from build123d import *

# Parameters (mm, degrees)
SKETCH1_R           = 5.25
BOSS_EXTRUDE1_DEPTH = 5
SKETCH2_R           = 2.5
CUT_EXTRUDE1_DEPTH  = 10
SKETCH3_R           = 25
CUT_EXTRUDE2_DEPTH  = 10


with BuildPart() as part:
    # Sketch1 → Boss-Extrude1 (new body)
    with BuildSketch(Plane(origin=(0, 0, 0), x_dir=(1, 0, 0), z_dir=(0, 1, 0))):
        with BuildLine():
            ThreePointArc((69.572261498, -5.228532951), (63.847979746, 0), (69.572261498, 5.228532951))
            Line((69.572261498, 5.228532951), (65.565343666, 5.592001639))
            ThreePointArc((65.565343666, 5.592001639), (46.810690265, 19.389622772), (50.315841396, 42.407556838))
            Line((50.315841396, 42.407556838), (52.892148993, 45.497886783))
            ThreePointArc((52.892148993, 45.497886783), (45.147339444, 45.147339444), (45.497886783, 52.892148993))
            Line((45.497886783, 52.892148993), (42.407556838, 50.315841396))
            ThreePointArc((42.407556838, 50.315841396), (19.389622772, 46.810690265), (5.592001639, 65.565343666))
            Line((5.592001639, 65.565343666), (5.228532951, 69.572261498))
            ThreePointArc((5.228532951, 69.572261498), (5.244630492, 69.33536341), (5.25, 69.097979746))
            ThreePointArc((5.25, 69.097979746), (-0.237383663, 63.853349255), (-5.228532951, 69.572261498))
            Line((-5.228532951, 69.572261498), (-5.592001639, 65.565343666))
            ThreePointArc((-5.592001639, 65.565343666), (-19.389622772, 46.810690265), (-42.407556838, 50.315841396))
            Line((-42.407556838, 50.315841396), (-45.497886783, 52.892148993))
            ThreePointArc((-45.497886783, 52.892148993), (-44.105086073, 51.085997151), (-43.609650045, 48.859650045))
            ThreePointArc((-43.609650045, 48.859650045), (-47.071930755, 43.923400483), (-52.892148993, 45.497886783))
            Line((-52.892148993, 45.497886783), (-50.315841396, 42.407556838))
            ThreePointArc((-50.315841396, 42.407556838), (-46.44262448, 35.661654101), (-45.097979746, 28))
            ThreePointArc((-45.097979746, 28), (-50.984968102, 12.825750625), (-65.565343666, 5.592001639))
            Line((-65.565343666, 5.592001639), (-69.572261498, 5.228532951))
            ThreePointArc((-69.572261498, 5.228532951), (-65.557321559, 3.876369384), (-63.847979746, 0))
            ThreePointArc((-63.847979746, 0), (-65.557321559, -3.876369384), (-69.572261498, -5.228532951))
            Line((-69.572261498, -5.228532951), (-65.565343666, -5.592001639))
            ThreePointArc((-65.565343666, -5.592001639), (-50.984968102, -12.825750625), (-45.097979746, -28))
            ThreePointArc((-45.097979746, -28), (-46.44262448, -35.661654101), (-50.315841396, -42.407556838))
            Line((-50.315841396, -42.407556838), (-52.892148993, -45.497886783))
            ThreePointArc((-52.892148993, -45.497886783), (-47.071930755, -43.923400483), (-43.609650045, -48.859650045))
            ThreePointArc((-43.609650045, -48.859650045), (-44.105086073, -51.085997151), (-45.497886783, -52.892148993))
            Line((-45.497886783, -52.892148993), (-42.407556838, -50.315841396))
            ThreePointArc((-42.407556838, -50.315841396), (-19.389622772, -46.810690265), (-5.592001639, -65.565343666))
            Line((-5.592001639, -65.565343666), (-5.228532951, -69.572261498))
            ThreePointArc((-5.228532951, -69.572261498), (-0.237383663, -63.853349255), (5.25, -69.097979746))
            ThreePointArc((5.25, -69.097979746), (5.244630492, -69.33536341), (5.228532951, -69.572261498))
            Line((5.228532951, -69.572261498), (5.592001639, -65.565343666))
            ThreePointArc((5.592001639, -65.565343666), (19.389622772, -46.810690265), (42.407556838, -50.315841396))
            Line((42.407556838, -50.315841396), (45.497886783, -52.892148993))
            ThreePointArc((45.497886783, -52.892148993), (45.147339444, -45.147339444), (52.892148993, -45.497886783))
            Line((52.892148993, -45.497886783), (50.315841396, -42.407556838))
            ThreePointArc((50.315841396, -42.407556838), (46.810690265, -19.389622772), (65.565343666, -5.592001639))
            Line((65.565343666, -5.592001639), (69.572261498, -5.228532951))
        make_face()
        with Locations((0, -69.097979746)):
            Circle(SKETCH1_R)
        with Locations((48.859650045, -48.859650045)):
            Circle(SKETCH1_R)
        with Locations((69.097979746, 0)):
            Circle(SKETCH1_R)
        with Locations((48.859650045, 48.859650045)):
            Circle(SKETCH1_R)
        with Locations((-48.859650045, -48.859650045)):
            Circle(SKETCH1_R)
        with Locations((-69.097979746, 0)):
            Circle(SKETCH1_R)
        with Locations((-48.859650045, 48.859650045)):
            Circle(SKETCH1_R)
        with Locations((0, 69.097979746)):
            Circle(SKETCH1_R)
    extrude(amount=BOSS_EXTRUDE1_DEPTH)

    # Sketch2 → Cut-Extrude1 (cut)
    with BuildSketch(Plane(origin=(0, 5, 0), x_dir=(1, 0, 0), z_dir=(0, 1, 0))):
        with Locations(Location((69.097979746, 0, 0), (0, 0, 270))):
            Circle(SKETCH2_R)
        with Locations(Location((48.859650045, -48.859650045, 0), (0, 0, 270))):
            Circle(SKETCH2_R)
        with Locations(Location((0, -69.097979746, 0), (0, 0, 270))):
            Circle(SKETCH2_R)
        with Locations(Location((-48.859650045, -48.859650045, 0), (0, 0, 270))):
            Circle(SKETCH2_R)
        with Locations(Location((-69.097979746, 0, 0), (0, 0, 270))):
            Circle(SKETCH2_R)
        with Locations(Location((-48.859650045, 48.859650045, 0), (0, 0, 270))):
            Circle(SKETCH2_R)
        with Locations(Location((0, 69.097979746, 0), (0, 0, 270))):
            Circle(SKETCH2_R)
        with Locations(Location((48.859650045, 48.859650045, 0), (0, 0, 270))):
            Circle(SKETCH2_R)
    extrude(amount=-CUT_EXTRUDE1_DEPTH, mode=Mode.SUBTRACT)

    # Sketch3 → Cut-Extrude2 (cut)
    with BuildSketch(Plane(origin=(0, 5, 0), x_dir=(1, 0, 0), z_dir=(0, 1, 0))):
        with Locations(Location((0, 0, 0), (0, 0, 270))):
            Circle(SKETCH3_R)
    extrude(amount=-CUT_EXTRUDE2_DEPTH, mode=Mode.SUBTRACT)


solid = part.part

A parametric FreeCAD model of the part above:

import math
import FreeCAD as App
import Part
import Sketcher

doc = App.newDocument("Part")
body = doc.addObject("PartDesign::Body", "Body")

sketch1 = body.newObject("Sketcher::SketchObject", "Sketch")
sketch1.AttachmentSupport = (doc.getObject("XZ_Plane"), [""])
sketch1.MapMode = "FlatFace"
sketch1.addGeometry(Part.LineSegment(App.Vector(69.572261, -5.228533, 0), App.Vector(65.565344, -5.592002, 0)), False)
sketch1.addGeometry(Part.ArcOfCircle(Part.Circle(App.Vector(67.59798, -28, 0), App.Vector(0, 0, 1), 22.5), math.radians(95.183132), math.radians(219.816868)), False)
sketch1.addGeometry(Part.LineSegment(App.Vector(50.315841, -42.407557, 0), App.Vector(52.892149, -45.497887, 0)), False)
sketch1.addGeometry(Part.ArcOfCircle(Part.Circle(App.Vector(48.85965, -48.85965, 0), App.Vector(0, 0, 1), 5.25), math.radians(-129.816868), math.radians(39.816868)), False)
sketch1.addGeometry(Part.LineSegment(App.Vector(45.497887, -52.892149, 0), App.Vector(42.407557, -50.315841, 0)), False)
sketch1.addGeometry(Part.ArcOfCircle(Part.Circle(App.Vector(28, -67.59798, 0), App.Vector(0, 0, 1), 22.5), math.radians(50.183132), math.radians(174.816868)), False)
sketch1.addGeometry(Part.LineSegment(App.Vector(5.592002, -65.565344, 0), App.Vector(5.228533, -69.572261, 0)), False)
sketch1.addGeometry(Part.ArcOfCircle(Part.Circle(App.Vector(0, -69.09798, 0), App.Vector(0, 0, 1), 5.25), math.radians(-174.816868), math.radians(-5.183132)), False)
sketch1.addGeometry(Part.LineSegment(App.Vector(-5.228533, -69.572261, 0), App.Vector(-5.592002, -65.565344, 0)), False)
sketch1.addGeometry(Part.ArcOfCircle(Part.Circle(App.Vector(-28, -67.59798, 0), App.Vector(0, 0, 1), 22.5), math.radians(5.183132), math.radians(129.816868)), False)
sketch1.addGeometry(Part.LineSegment(App.Vector(-42.407557, -50.315841, 0), App.Vector(-45.497887, -52.892149, 0)), False)
sketch1.addGeometry(Part.ArcOfCircle(Part.Circle(App.Vector(-48.85965, -48.85965, 0), App.Vector(0, 0, 1), 5.25), math.radians(140.183132), math.radians(309.816868)), False)
sketch1.addGeometry(Part.LineSegment(App.Vector(-52.892149, -45.497887, 0), App.Vector(-50.315841, -42.407557, 0)), False)
sketch1.addGeometry(Part.ArcOfCircle(Part.Circle(App.Vector(-67.59798, -28, 0), App.Vector(0, 0, 1), 22.5), math.radians(-39.816868), math.radians(0)), False)
sketch1.addGeometry(Part.ArcOfCircle(Part.Circle(App.Vector(-67.59798, -28, 0), App.Vector(0, 0, 1), 22.5), math.radians(0), math.radians(84.816868)), False)
sketch1.addGeometry(Part.LineSegment(App.Vector(-65.565344, -5.592002, 0), App.Vector(-69.572261, -5.228533, 0)), False)
sketch1.addGeometry(Part.ArcOfCircle(Part.Circle(App.Vector(-69.09798, 0, 0), App.Vector(0, 0, 1), 5.25), math.radians(95.183132), math.radians(264.816868)), False)
sketch1.addGeometry(Part.LineSegment(App.Vector(-69.572261, 5.228533, 0), App.Vector(-65.565344, 5.592002, 0)), False)
sketch1.addGeometry(Part.ArcOfCircle(Part.Circle(App.Vector(-67.59798, 28, 0), App.Vector(0, 0, 1), 22.5), math.radians(-84.816868), math.radians(0)), False)
sketch1.addGeometry(Part.ArcOfCircle(Part.Circle(App.Vector(-67.59798, 28, 0), App.Vector(0, 0, 1), 22.5), math.radians(0), math.radians(39.816868)), False)
sketch1.addGeometry(Part.LineSegment(App.Vector(-50.315841, 42.407557, 0), App.Vector(-52.892149, 45.497887, 0)), False)
sketch1.addGeometry(Part.ArcOfCircle(Part.Circle(App.Vector(-48.85965, 48.85965, 0), App.Vector(0, 0, 1), 5.25), math.radians(50.183132), math.radians(219.816868)), False)
sketch1.addGeometry(Part.LineSegment(App.Vector(-45.497887, 52.892149, 0), App.Vector(-42.407557, 50.315841, 0)), False)
sketch1.addGeometry(Part.ArcOfCircle(Part.Circle(App.Vector(-28, 67.59798, 0), App.Vector(0, 0, 1), 22.5), math.radians(-129.816868), math.radians(-5.183132)), False)
sketch1.addGeometry(Part.LineSegment(App.Vector(-5.592002, 65.565344, 0), App.Vector(-5.228533, 69.572261, 0)), False)
sketch1.addGeometry(Part.ArcOfCircle(Part.Circle(App.Vector(0, 69.09798, 0), App.Vector(0, 0, 1), 5.25), math.radians(5.183132), math.radians(174.816868)), False)
sketch1.addGeometry(Part.LineSegment(App.Vector(5.228533, 69.572261, 0), App.Vector(5.592002, 65.565344, 0)), False)
sketch1.addGeometry(Part.ArcOfCircle(Part.Circle(App.Vector(28, 67.59798, 0), App.Vector(0, 0, 1), 22.5), math.radians(-174.816868), math.radians(-50.183132)), False)
sketch1.addGeometry(Part.LineSegment(App.Vector(42.407557, 50.315841, 0), App.Vector(45.497887, 52.892149, 0)), False)
sketch1.addGeometry(Part.ArcOfCircle(Part.Circle(App.Vector(48.85965, 48.85965, 0), App.Vector(0, 0, 1), 5.25), math.radians(-39.816868), math.radians(129.816868)), False)
sketch1.addGeometry(Part.LineSegment(App.Vector(52.892149, 45.497887, 0), App.Vector(50.315841, 42.407557, 0)), False)
sketch1.addGeometry(Part.ArcOfCircle(Part.Circle(App.Vector(67.59798, 28, 0), App.Vector(0, 0, 1), 22.5), math.radians(140.183132), math.radians(264.816868)), False)
sketch1.addGeometry(Part.LineSegment(App.Vector(65.565344, 5.592002, 0), App.Vector(69.572261, 5.228533, 0)), False)
sketch1.addGeometry(Part.ArcOfCircle(Part.Circle(App.Vector(69.09798, 0, 0), App.Vector(0, 0, 1), 5.25), math.radians(-84.816868), math.radians(84.816868)), False)
sketch1.addConstraint(Sketcher.Constraint("Tangent", 0, 2, 1, 1))
sketch1.addConstraint(Sketcher.Constraint("Tangent", 1, 2, 2, 1))
sketch1.addConstraint(Sketcher.Constraint("Tangent", 2, 2, 3, 2))
sketch1.addConstraint(Sketcher.Constraint("Tangent", 3, 1, 4, 1))
sketch1.addConstraint(Sketcher.Constraint("Tangent", 4, 2, 5, 1))
sketch1.addConstraint(Sketcher.Constraint("Tangent", 5, 2, 6, 1))
sketch1.addConstraint(Sketcher.Constraint("Tangent", 6, 2, 7, 2))
sketch1.addConstraint(Sketcher.Constraint("Tangent", 7, 1, 8, 1))
sketch1.addConstraint(Sketcher.Constraint("Tangent", 8, 2, 9, 1))
sketch1.addConstraint(Sketcher.Constraint("Tangent", 9, 2, 10, 1))
sketch1.addConstraint(Sketcher.Constraint("Tangent", 10, 2, 11, 2))
sketch1.addConstraint(Sketcher.Constraint("Tangent", 11, 1, 12, 1))
sketch1.addConstraint(Sketcher.Constraint("Tangent", 12, 2, 13, 1))
sketch1.addConstraint(Sketcher.Constraint("Tangent", 13, 2, 14, 1))
sketch1.addConstraint(Sketcher.Constraint("Tangent", 14, 2, 15, 1))
sketch1.addConstraint(Sketcher.Constraint("Tangent", 15, 2, 16, 2))
sketch1.addConstraint(Sketcher.Constraint("Tangent", 16, 1, 17, 1))
sketch1.addConstraint(Sketcher.Constraint("Tangent", 17, 2, 18, 1))
sketch1.addConstraint(Sketcher.Constraint("Tangent", 18, 2, 19, 1))
sketch1.addConstraint(Sketcher.Constraint("Tangent", 19, 2, 20, 1))
sketch1.addConstraint(Sketcher.Constraint("Tangent", 20, 2, 21, 2))
sketch1.addConstraint(Sketcher.Constraint("Tangent", 21, 1, 22, 1))
sketch1.addConstraint(Sketcher.Constraint("Tangent", 22, 2, 23, 1))
sketch1.addConstraint(Sketcher.Constraint("Tangent", 23, 2, 24, 1))
sketch1.addConstraint(Sketcher.Constraint("Tangent", 24, 2, 25, 2))
sketch1.addConstraint(Sketcher.Constraint("Tangent", 25, 1, 26, 1))
sketch1.addConstraint(Sketcher.Constraint("Tangent", 26, 2, 27, 1))
sketch1.addConstraint(Sketcher.Constraint("Tangent", 27, 2, 28, 1))
sketch1.addConstraint(Sketcher.Constraint("Tangent", 28, 2, 29, 2))
sketch1.addConstraint(Sketcher.Constraint("Tangent", 29, 1, 30, 1))
sketch1.addConstraint(Sketcher.Constraint("Tangent", 30, 2, 31, 1))
sketch1.addConstraint(Sketcher.Constraint("Tangent", 31, 2, 32, 1))
sketch1.addConstraint(Sketcher.Constraint("Tangent", 32, 2, 33, 2))
sketch1.addConstraint(Sketcher.Constraint("Tangent", 33, 1, 0, 1))
sketch1.addConstraint(Sketcher.Constraint("Equal", 1, 5))
sketch1.addConstraint(Sketcher.Constraint("Equal", 3, 7))
sketch1.addConstraint(Sketcher.Constraint("Equal", 5, 9))
sketch1.addConstraint(Sketcher.Constraint("Equal", 7, 11))
sketch1.addConstraint(Sketcher.Constraint("Equal", 9, 13))
sketch1.addConstraint(Sketcher.Constraint("Equal", 13, 14))
sketch1.addConstraint(Sketcher.Constraint("Equal", 11, 16))
sketch1.addConstraint(Sketcher.Constraint("Equal", 14, 18))
sketch1.addConstraint(Sketcher.Constraint("Equal", 18, 19))
sketch1.addConstraint(Sketcher.Constraint("Equal", 16, 21))
sketch1.addConstraint(Sketcher.Constraint("Equal", 19, 23))
sketch1.addConstraint(Sketcher.Constraint("Equal", 21, 25))
sketch1.addConstraint(Sketcher.Constraint("Equal", 23, 27))
sketch1.addConstraint(Sketcher.Constraint("Equal", 25, 29))
sketch1.addConstraint(Sketcher.Constraint("Equal", 27, 31))
sketch1.addConstraint(Sketcher.Constraint("Equal", 29, 33))
sketch1.addConstraint(Sketcher.Constraint("Symmetric", 1, 3, 18, 3, -1, 1))
sketch1.addConstraint(Sketcher.Constraint("Symmetric", 3, 3, 21, 3, -1, 1))
sketch1.addConstraint(Sketcher.Constraint("Symmetric", 5, 3, 23, 3, -1, 1))
sketch1.addConstraint(Sketcher.Constraint("Symmetric", 7, 3, 25, 3, -1, 1))
sketch1.addConstraint(Sketcher.Constraint("Symmetric", 9, 3, 27, 3, -1, 1))
sketch1.addConstraint(Sketcher.Constraint("Symmetric", 11, 3, 29, 3, -1, 1))
sketch1.addConstraint(Sketcher.Constraint("Symmetric", 13, 3, 31, 3, -1, 1))
sketch1.addConstraint(Sketcher.Constraint("Symmetric", 16, 3, 33, 3, -1, 1))
sketch1.addConstraint(Sketcher.Constraint("Symmetric", 5, 3, 9, 3, -2))
sketch1.addConstraint(Sketcher.Constraint("Symmetric", 3, 3, 11, 3, -2))
sketch1.addConstraint(Sketcher.Constraint("Symmetric", 1, 3, 13, 3, -2))
sketch1.addConstraint(Sketcher.Constraint("PointOnObject", 7, 3, -2))
sketch1.addConstraint(Sketcher.Constraint("PointOnObject", 16, 3, -1))
sketch1.addConstraint(Sketcher.Constraint("Perpendicular", 0, 8))
sketch1.addConstraint(Sketcher.Constraint("Perpendicular", 2, 10))
sketch1.addConstraint(Sketcher.Constraint("Horizontal", 14, 3, 13, 2))
sketch1.addConstraint(Sketcher.Constraint("Horizontal", 31, 3, 18, 2))
sketch1.addConstraint(Sketcher.Constraint("Equal", 0, 2))
sketch1.addConstraint(Sketcher.Constraint("Equal", 2, 4))
sketch1.addConstraint(Sketcher.Constraint("Equal", 4, 6))
sketch1.addConstraint(Sketcher.Constraint("Radius", 1, 22.5))
sketch1.addConstraint(Sketcher.Constraint("Radius", 3, 5.25))
sketch1.addConstraint(Sketcher.Constraint("DistanceY", 1, 3, -1, 1, 28.0))
sketch1.addConstraint(Sketcher.Constraint("DistanceY", 7, 3, 5, 3, 1.5))
sketch1.addConstraint(Sketcher.Constraint("DistanceX", 11, 3, 3, 3, 97.7193))
pad1 = body.newObject("PartDesign::Pad", "Pad")
pad1.Profile = sketch1
pad1.Length = 5
pad1.Reversed = True

sketch2 = body.newObject("Sketcher::SketchObject", "Sketch001")
sketch2.AttachmentSupport = (doc.getObject("XZ_Plane"), [""])
sketch2.MapMode = "FlatFace"
sketch2.AttachmentOffset = App.Placement(App.Vector(0, 0, -5), App.Rotation())
sketch2.addGeometry(Part.Circle(App.Vector(69.09798, 0, 0), App.Vector(0, 0, 1), 2.5), False)
sketch2.addGeometry(Part.Circle(App.Vector(48.85965, 48.85965, 0), App.Vector(0, 0, 1), 2.5), False)
sketch2.addGeometry(Part.Circle(App.Vector(0, 69.09798, 0), App.Vector(0, 0, 1), 2.5), False)
sketch2.addGeometry(Part.Circle(App.Vector(-48.85965, 48.85965, 0), App.Vector(0, 0, 1), 2.5), False)
sketch2.addGeometry(Part.Circle(App.Vector(-69.09798, 0, 0), App.Vector(0, 0, 1), 2.5), False)
sketch2.addGeometry(Part.Circle(App.Vector(-48.85965, -48.85965, 0), App.Vector(0, 0, 1), 2.5), False)
sketch2.addGeometry(Part.Circle(App.Vector(0, -69.09798, 0), App.Vector(0, 0, 1), 2.5), False)
sketch2.addGeometry(Part.Circle(App.Vector(48.85965, -48.85965, 0), App.Vector(0, 0, 1), 2.5), False)
sketch2.addConstraint(Sketcher.Constraint("Equal", 0, 1))
sketch2.addConstraint(Sketcher.Constraint("Equal", 1, 2))
sketch2.addConstraint(Sketcher.Constraint("Equal", 2, 3))
sketch2.addConstraint(Sketcher.Constraint("Equal", 3, 4))
sketch2.addConstraint(Sketcher.Constraint("Equal", 4, 5))
sketch2.addConstraint(Sketcher.Constraint("Equal", 5, 6))
sketch2.addConstraint(Sketcher.Constraint("Equal", 6, 7))
sketch2.addConstraint(Sketcher.Constraint("Symmetric", 0, 3, 4, 3, -1, 1))
sketch2.addConstraint(Sketcher.Constraint("Symmetric", 1, 3, 5, 3, -1, 1))
sketch2.addConstraint(Sketcher.Constraint("Symmetric", 2, 3, 6, 3, -1, 1))
sketch2.addConstraint(Sketcher.Constraint("Symmetric", 3, 3, 7, 3, -1, 1))
sketch2.addConstraint(Sketcher.Constraint("Symmetric", 1, 3, 3, 3, -2))
sketch2.addConstraint(Sketcher.Constraint("PointOnObject", 0, 3, -1))
sketch2.addConstraint(Sketcher.Constraint("PointOnObject", 2, 3, -2))
sketch2.addConstraint(Sketcher.Constraint("Diameter", 0, 5.0))
sketch2.addConstraint(Sketcher.Constraint("DistanceX", 3, 3, 1, 3, 97.7193))
sketch2.addConstraint(Sketcher.Constraint("DistanceY", 5, 3, 3, 3, 97.7193))
sketch2.addConstraint(Sketcher.Constraint("DistanceX", -1, 1, 0, 3, 69.09798))
sketch2.addConstraint(Sketcher.Constraint("DistanceY", -1, 1, 2, 3, 69.09798))
pocket1 = body.newObject("PartDesign::Pocket", "Pocket")
pocket1.Profile = sketch2
pocket1.Length = 10
pocket1.Reversed = True

sketch3 = body.newObject("Sketcher::SketchObject", "Sketch002")
sketch3.AttachmentSupport = (doc.getObject("XZ_Plane"), [""])
sketch3.MapMode = "FlatFace"
sketch3.AttachmentOffset = App.Placement(App.Vector(0, 0, -5), App.Rotation())
sketch3.addGeometry(Part.Circle(App.Vector(0, 0, 0), App.Vector(0, 0, 1), 25), False)
sketch3.addConstraint(Sketcher.Constraint("Coincident", 0, 3, -1, 1))
sketch3.addConstraint(Sketcher.Constraint("Diameter", 0, 50.0))
pocket2 = body.newObject("PartDesign::Pocket", "Pocket001")
pocket2.Profile = sketch3
pocket2.Length = 10
pocket2.Reversed = True

doc.recompute()
